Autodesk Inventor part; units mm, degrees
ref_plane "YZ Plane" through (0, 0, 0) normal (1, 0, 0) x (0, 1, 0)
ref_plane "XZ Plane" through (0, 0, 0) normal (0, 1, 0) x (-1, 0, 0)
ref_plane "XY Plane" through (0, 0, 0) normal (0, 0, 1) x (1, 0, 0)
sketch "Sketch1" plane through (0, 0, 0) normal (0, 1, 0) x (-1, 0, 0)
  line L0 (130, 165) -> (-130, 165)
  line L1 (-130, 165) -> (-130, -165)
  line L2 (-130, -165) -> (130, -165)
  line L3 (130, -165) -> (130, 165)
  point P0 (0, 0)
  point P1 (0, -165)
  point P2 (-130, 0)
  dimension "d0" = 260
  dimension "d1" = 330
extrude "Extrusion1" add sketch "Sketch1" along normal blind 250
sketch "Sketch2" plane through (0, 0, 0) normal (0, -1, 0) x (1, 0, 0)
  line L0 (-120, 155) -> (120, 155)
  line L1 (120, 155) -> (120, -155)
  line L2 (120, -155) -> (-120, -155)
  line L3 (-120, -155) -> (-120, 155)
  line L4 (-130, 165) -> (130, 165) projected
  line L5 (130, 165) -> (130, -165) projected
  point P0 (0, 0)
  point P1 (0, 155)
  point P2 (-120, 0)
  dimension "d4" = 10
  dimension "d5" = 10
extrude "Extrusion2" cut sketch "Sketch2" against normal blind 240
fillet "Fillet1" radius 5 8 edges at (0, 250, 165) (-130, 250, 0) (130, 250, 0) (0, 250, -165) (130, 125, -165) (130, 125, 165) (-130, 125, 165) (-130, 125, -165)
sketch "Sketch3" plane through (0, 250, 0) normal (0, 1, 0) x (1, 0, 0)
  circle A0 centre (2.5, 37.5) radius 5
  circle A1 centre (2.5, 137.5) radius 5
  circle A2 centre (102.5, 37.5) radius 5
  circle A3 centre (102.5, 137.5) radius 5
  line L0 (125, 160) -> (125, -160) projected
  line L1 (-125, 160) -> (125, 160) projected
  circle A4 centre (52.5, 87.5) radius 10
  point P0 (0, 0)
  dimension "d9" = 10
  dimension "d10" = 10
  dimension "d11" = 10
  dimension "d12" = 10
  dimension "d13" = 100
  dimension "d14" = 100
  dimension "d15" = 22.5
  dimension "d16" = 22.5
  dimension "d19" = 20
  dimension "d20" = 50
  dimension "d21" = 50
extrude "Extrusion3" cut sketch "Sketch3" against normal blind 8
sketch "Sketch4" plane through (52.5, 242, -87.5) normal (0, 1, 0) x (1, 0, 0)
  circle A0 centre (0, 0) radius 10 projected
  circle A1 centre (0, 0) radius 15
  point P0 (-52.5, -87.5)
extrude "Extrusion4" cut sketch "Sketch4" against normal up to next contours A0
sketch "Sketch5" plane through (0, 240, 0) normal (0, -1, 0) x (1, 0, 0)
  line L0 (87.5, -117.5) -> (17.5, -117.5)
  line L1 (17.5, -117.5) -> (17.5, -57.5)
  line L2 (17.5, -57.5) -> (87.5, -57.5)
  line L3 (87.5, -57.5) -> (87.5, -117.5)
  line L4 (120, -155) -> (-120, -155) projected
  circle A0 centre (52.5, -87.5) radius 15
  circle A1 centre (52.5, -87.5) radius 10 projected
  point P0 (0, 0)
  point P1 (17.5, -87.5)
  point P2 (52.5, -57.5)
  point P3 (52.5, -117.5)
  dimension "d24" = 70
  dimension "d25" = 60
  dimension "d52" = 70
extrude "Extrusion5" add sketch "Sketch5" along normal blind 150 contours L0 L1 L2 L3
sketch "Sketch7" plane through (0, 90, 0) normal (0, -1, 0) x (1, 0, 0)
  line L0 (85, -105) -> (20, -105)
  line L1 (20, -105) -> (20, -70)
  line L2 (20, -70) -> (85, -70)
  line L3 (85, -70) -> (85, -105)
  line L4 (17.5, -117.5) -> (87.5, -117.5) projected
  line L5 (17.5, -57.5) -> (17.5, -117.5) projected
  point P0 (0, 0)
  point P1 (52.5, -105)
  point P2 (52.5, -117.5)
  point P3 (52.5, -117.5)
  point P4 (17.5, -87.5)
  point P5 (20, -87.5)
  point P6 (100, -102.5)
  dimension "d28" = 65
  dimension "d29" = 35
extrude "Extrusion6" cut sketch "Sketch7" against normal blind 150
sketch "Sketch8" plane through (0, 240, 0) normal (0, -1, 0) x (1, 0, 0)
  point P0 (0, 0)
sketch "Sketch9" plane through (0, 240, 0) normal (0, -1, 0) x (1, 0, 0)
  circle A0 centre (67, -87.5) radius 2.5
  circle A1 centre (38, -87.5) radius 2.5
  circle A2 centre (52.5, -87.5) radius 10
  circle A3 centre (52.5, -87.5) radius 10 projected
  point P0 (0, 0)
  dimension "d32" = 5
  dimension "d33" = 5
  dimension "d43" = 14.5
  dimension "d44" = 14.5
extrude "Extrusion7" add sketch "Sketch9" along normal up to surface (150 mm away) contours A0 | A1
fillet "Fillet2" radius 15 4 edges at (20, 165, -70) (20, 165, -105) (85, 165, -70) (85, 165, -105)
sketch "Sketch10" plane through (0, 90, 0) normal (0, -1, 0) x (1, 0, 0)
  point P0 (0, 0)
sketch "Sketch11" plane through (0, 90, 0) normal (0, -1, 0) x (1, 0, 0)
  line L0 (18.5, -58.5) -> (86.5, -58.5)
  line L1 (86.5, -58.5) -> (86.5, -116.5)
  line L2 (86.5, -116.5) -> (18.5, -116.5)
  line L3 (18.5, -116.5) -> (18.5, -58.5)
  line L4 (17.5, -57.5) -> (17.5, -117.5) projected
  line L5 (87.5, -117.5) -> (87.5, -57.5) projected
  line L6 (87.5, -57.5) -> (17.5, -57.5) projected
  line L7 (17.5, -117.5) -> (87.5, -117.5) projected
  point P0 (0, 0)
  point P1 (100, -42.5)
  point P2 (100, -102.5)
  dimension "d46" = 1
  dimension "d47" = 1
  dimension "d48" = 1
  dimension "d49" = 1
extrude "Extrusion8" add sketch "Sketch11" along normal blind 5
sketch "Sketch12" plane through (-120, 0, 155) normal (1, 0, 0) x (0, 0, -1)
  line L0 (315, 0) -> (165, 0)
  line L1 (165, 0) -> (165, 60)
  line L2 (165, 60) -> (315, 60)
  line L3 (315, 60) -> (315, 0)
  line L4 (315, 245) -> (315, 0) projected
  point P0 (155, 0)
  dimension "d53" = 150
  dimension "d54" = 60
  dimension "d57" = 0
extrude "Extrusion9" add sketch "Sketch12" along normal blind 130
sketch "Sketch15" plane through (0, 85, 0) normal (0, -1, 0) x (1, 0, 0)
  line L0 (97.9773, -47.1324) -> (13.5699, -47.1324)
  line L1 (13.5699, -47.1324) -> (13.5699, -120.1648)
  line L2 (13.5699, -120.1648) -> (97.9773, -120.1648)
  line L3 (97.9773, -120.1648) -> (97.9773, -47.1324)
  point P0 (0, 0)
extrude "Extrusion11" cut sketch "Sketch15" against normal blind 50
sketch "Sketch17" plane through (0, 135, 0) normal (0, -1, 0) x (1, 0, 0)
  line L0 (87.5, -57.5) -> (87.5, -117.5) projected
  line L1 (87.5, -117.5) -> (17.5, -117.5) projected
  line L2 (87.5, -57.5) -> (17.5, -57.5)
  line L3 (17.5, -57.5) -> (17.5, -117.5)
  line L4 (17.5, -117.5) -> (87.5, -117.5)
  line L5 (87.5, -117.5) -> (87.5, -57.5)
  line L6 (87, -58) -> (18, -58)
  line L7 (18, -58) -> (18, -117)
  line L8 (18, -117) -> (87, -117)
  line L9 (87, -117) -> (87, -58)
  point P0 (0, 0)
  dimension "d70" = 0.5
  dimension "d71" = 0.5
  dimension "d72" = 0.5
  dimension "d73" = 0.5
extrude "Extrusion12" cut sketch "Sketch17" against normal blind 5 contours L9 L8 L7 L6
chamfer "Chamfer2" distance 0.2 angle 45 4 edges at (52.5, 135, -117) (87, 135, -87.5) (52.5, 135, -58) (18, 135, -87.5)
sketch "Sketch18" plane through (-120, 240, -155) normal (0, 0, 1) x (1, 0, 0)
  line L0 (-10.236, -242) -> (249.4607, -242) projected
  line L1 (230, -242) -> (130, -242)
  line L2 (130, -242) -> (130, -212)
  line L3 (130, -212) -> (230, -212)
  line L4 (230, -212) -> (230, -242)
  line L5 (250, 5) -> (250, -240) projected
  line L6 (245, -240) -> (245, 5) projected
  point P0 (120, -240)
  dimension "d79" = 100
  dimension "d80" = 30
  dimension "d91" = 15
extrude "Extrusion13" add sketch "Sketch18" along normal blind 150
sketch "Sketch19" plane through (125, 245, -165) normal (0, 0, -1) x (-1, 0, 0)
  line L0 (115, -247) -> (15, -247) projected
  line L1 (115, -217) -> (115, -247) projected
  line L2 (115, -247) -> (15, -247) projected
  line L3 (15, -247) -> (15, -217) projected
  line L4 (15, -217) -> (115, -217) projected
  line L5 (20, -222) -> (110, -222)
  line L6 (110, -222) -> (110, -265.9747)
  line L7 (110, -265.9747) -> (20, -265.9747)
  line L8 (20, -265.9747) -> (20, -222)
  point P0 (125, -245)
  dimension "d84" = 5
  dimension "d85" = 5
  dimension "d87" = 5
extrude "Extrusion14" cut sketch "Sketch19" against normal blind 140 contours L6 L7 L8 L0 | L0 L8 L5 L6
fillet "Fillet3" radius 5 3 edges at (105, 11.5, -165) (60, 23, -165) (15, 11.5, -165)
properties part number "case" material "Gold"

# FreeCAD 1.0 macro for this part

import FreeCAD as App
import Part
import Sketcher
Q = App.Units.Quantity


def edges_at(feature, points):
    """Names of the edges that pass closest to the given points."""
    edges = feature.Shape.Edges
    near = lambda p: min(range(len(edges)), key=lambda i: edges[i].distToShape(Part.Vertex(*p))[0])
    return sorted({f"Edge{near(p) + 1}" for p in points})

doc = App.newDocument("Part")
params = doc.addObject("Spreadsheet::Sheet", "Params")
for row, (alias, value) in enumerate([
    ("sketch1_width", "260 mm"),
    ("sketch1_height", "330 mm"),
    ("pad1_length", "250 mm"),
    ("sketch2_width", "240 mm"),
    ("sketch2_height", "310 mm"),
    ("pocket1_length", "240 mm"),
    ("fillet_radius", "5 mm"),
    ("sketch3_diameter", "10 mm"),
    ("sketch3_diameter2", "20 mm"),
    ("pocket2_length", "8 mm"),
    ("sketch4_diameter", "20 mm"),
    ("sketch5_width", "70 mm"),
    ("sketch5_height", "60 mm"),
    ("sketch5_diameter", "30 mm"),
    ("pad2_length", "150 mm"),
    ("sketch6_width", "65 mm"),
    ("sketch6_height", "35 mm"),
    ("pocket4_length", "150 mm"),
    ("sketch7_diameter", "5 mm"),
    ("pad3_length", "150 mm"),
    ("fillet2_radius", "15 mm"),
    ("sketch8_width", "70 mm"),
    ("sketch8_height", "60 mm"),
    ("pad4_length", "5 mm"),
    ("sketch9_width", "60 mm"),
    ("sketch9_height", "150 mm"),
    ("pad5_length", "130 mm"),
    ("pocket5_length", "50 mm"),
    ("sketch11_width", "69 mm"),
    ("sketch11_height", "59 mm"),
    ("pocket6_length", "5 mm"),
    ("chamfer_size", "0.2 mm"),
    ("sketch12_width", "100 mm"),
    ("sketch12_height", "30 mm"),
    ("pad6_length", "150 mm"),
    ("sketch13_width", "90 mm"),
    ("pocket7_length", "140 mm"),
    ("fillet3_radius", "5 mm"),
], start=1):
    params.set(f"A{row}", alias)
    params.set(f"B{row}", "=" + value)
    params.setAlias(f"B{row}", alias)

body = doc.addObject("PartDesign::Body", "Body")

# Sketch on XZ plane
sketch1 = body.newObject("Sketcher::SketchObject", "Sketch")
sketch1.AttachmentSupport = (doc.getObject("XZ_Plane"), [""])
sketch1.MapMode = "FlatFace"
sketch1.addGeometry([
    Part.LineSegment(App.Vector(-130, -165, 0), App.Vector(-130, 165, 0)),
    Part.LineSegment(App.Vector(-130, 165, 0), App.Vector(130, 165, 0)),
    Part.LineSegment(App.Vector(130, 165, 0), App.Vector(130, -165, 0)),
    Part.LineSegment(App.Vector(130, -165, 0), App.Vector(-130, -165, 0)),
], False)
sketch1.addConstraint([
    Sketcher.Constraint("Coincident", 0, 2, 1, 1),
    Sketcher.Constraint("Coincident", 1, 2, 2, 1),
    Sketcher.Constraint("Coincident", 2, 2, 3, 1),
    Sketcher.Constraint("Coincident", 3, 2, 0, 1),
    Sketcher.Constraint("Vertical", 0),
    Sketcher.Constraint("Horizontal", 1),
    Sketcher.Constraint("Vertical", 2),
    Sketcher.Constraint("Horizontal", 3),
    Sketcher.Constraint("Symmetric", 0, 2, 2, 2, -1, 1),
    Sketcher.Constraint("DistanceX", 1, 1, 1, 2, Q("260 mm")),
    Sketcher.Constraint("DistanceY", 0, 1, 0, 2, Q("330 mm")),
])
sketch1.setExpression("Constraints[9]", "Params.sketch1_width")
sketch1.setExpression("Constraints[10]", "Params.sketch1_height")
pad1 = body.newObject("PartDesign::Pad", "Pad")
pad1.Profile = sketch1
pad1.setExpression("Length", "Params.pad1_length")
pad1.Reversed = True

# Sketch on XZ plane
sketch2 = body.newObject("Sketcher::SketchObject", "Sketch001")
sketch2.AttachmentSupport = (doc.getObject("XZ_Plane"), [""])
sketch2.MapMode = "FlatFace"
sketch2.addGeometry([
    Part.LineSegment(App.Vector(120, 155, 0), App.Vector(-120, 155, 0)),
    Part.LineSegment(App.Vector(-120, 155, 0), App.Vector(-120, -155, 0)),
    Part.LineSegment(App.Vector(-120, -155, 0), App.Vector(120, -155, 0)),
    Part.LineSegment(App.Vector(120, -155, 0), App.Vector(120, 155, 0)),
], False)
sketch2.addConstraint([
    Sketcher.Constraint("Coincident", 0, 2, 1, 1),
    Sketcher.Constraint("Coincident", 1, 2, 2, 1),
    Sketcher.Constraint("Coincident", 2, 2, 3, 1),
    Sketcher.Constraint("Coincident", 3, 2, 0, 1),
    Sketcher.Constraint("Horizontal", 0),
    Sketcher.Constraint("Vertical", 1),
    Sketcher.Constraint("Horizontal", 2),
    Sketcher.Constraint("Vertical", 3),
    Sketcher.Constraint("Symmetric", 0, 2, 2, 2, -1, 1),
    Sketcher.Constraint("DistanceX", 0, 2, 0, 1, Q("240 mm")),
    Sketcher.Constraint("DistanceY", 1, 2, 1, 1, Q("310 mm")),
])
sketch2.setExpression("Constraints[9]", "Params.sketch2_width")
sketch2.setExpression("Constraints[10]", "Params.sketch2_height")
pocket1 = body.newObject("PartDesign::Pocket", "Pocket")
pocket1.Profile = sketch2
pocket1.setExpression("Length", "Params.pocket1_length")
doc.recompute()

fillet = body.newObject("PartDesign::Fillet", "Fillet")
fillet.Base = (pocket1, edges_at(pocket1, [
    (0, 250, 165),
    (-130, 250, 0),
    (130, 250, 0),
    (0, 250, -165),
    (130, 125, -165),
    (130, 125, 165),
    (-130, 125, 165),
    (-130, 125, -165),
]))
fillet.setExpression("Radius", "Params.fillet_radius")

# Sketch on XZ plane
sketch3 = body.newObject("Sketcher::SketchObject", "Sketch002")
sketch3.AttachmentSupport = (doc.getObject("XZ_Plane"), [""])
sketch3.MapMode = "FlatFace"
sketch3.AttachmentOffset = App.Placement(App.Vector(0, 0, -250), App.Rotation())
sketch3.addGeometry([
    Part.Circle(App.Vector(2, -38, 0), App.Vector(0, 0, 1), 5),  # 0
    Part.Circle(App.Vector(2, -138, 0), App.Vector(0, 0, 1), 5),  # 1
    Part.Circle(App.Vector(102, -38, 0), App.Vector(0, 0, 1), 5),  # 2
    Part.Circle(App.Vector(102, -138, 0), App.Vector(0, 0, 1), 5),  # 3
    Part.Circle(App.Vector(52, -88, 0), App.Vector(0, 0, 1), 10),  # 4
], False)
sketch3.addConstraint([
    Sketcher.Constraint("Equal", 0, 1),
    Sketcher.Constraint("Equal", 1, 2),
    Sketcher.Constraint("Equal", 2, 3),
    Sketcher.Constraint("Horizontal", 0, 3, 2, 3),
    Sketcher.Constraint("Horizontal", 1, 3, 3, 3),
    Sketcher.Constraint("Vertical", 0, 3, 1, 3),
    Sketcher.Constraint("Vertical", 2, 3, 3, 3),
    Sketcher.Constraint("Diameter", 0, Q("10 mm")),
    Sketcher.Constraint("Diameter", 4, Q("20 mm")),
    Sketcher.Constraint("DistanceY", 1, 3, 0, 3, Q("100 mm")),
    Sketcher.Constraint("DistanceX", 0, 3, 2, 3, Q("100 mm")),
    Sketcher.Constraint("DistanceX", 0, 3, 4, 3, Q("50 mm")),
    Sketcher.Constraint("DistanceY", 4, 3, 0, 3, Q("50 mm")),
    Sketcher.Constraint("DistanceX", -1, 1, 0, 3, Q("2.5 mm")),
    Sketcher.Constraint("DistanceY", 0, 3, -1, 1, Q("37.5 mm")),
])
sketch3.setExpression("Constraints[7]", "Params.sketch3_diameter")
sketch3.setExpression("Constraints[8]", "Params.sketch3_diameter2")
pocket2 = body.newObject("PartDesign::Pocket", "Pocket001")
pocket2.Profile = sketch3
pocket2.setExpression("Length", "Params.pocket2_length")
pocket2.Reversed = True

# Sketch on XZ plane
sketch4 = body.newObject("Sketcher::SketchObject", "Sketch003")
sketch4.AttachmentSupport = (doc.getObject("XZ_Plane"), [""])
sketch4.MapMode = "FlatFace"
sketch4.AttachmentOffset = App.Placement(App.Vector(0, 0, -242), App.Rotation())
sketch4.addGeometry(Part.Circle(App.Vector(52, -88, 0), App.Vector(0, 0, 1), 10), False)
sketch4.addConstraint([
    Sketcher.Constraint("Diameter", 0, Q("20 mm")),
    Sketcher.Constraint("DistanceX", -1, 1, 0, 3, Q("52.5 mm")),
    Sketcher.Constraint("DistanceY", 0, 3, -1, 1, Q("87.5 mm")),
])
sketch4.setExpression("Constraints[0]", "Params.sketch4_diameter")
pocket3 = body.newObject("PartDesign::Pocket", "Pocket002")
pocket3.Profile = sketch4
pocket3.Type = "UpToFirst"
pocket3.Reversed = True

# Sketch on XZ plane
sketch5 = body.newObject("Sketcher::SketchObject", "Sketch004")
sketch5.AttachmentSupport = (doc.getObject("XZ_Plane"), [""])
sketch5.MapMode = "FlatFace"
sketch5.AttachmentOffset = App.Placement(App.Vector(0, 0, -240), App.Rotation())
sketch5.addGeometry([
    Part.LineSegment(App.Vector(18, -118, 0), App.Vector(88, -118, 0)),  # 0
    Part.LineSegment(App.Vector(88, -118, 0), App.Vector(88, -58, 0)),  # 1
    Part.LineSegment(App.Vector(88, -58, 0), App.Vector(18, -58, 0)),  # 2
    Part.LineSegment(App.Vector(18, -58, 0), App.Vector(18, -118, 0)),  # 3
    Part.Circle(App.Vector(52, -88, 0), App.Vector(0, 0, 1), 15),  # 4
], False)
sketch5.addConstraint([
    Sketcher.Constraint("Coincident", 0, 2, 1, 1),
    Sketcher.Constraint("Coincident", 1, 2, 2, 1),
    Sketcher.Constraint("Coincident", 2, 2, 3, 1),
    Sketcher.Constraint("Coincident", 3, 2, 0, 1),
    Sketcher.Constraint("Horizontal", 0),
    Sketcher.Constraint("Vertical", 1),
    Sketcher.Constraint("Horizontal", 2),
    Sketcher.Constraint("Vertical", 3),
    Sketcher.Constraint("DistanceX", 0, 1, 0, 2, Q("70 mm")),
    Sketcher.Constraint("DistanceY", 1, 1, 1, 2, Q("60 mm")),
    Sketcher.Constraint("Diameter", 4, Q("30 mm")),
    Sketcher.Constraint("DistanceX", 4, 3, 0, 2, Q("35 mm")),
    Sketcher.Constraint("DistanceY", 0, 2, 4, 3, Q("30 mm")),
    Sketcher.Constraint("DistanceX", -1, 1, 4, 3, Q("52.5 mm")),
    Sketcher.Constraint("DistanceY", 4, 3, -1, 1, Q("87.5 mm")),
])
sketch5.setExpression("Constraints[8]", "Params.sketch5_width")
sketch5.setExpression("Constraints[9]", "Params.sketch5_height")
sketch5.setExpression("Constraints[10]", "Params.sketch5_diameter")
pad2 = body.newObject("PartDesign::Pad", "Pad001")
pad2.Profile = sketch5
pad2.setExpression("Length", "Params.pad2_length")

# Sketch on XZ plane
sketch6 = body.newObject("Sketcher::SketchObject", "Sketch005")
sketch6.AttachmentSupport = (doc.getObject("XZ_Plane"), [""])
sketch6.MapMode = "FlatFace"
sketch6.AttachmentOffset = App.Placement(App.Vector(0, 0, -90), App.Rotation())
sketch6.addGeometry([
    Part.LineSegment(App.Vector(20, -105, 0), App.Vector(85, -105, 0)),
    Part.LineSegment(App.Vector(85, -105, 0), App.Vector(85, -70, 0)),
    Part.LineSegment(App.Vector(85, -70, 0), App.Vector(20, -70, 0)),
    Part.LineSegment(App.Vector(20, -70, 0), App.Vector(20, -105, 0)),
], False)
sketch6.addConstraint([
    Sketcher.Constraint("Coincident", 0, 2, 1, 1),
    Sketcher.Constraint("Coincident", 1, 2, 2, 1),
    Sketcher.Constraint("Coincident", 2, 2, 3, 1),
    Sketcher.Constraint("Coincident", 3, 2, 0, 1),
    Sketcher.Constraint("Horizontal", 0),
    Sketcher.Constraint("Vertical", 1),
    Sketcher.Constraint("Horizontal", 2),
    Sketcher.Constraint("Vertical", 3),
    Sketcher.Constraint("DistanceX", 0, 1, 0, 2, Q("65 mm")),
    Sketcher.Constraint("DistanceY", 1, 1, 1, 2, Q("35 mm")),
    Sketcher.Constraint("DistanceX", -1, 1, 0, 2, Q("85 mm")),
    Sketcher.Constraint("DistanceY", 0, 2, -1, 1, Q("105 mm")),
])
sketch6.setExpression("Constraints[8]", "Params.sketch6_width")
sketch6.setExpression("Constraints[9]", "Params.sketch6_height")
pocket4 = body.newObject("PartDesign::Pocket", "Pocket003")
pocket4.Profile = sketch6
pocket4.setExpression("Length", "Params.pocket4_length")

# Sketch on XZ plane
sketch7 = body.newObject("Sketcher::SketchObject", "Sketch006")
sketch7.AttachmentSupport = (doc.getObject("XZ_Plane"), [""])
sketch7.MapMode = "FlatFace"
sketch7.AttachmentOffset = App.Placement(App.Vector(0, 0, -240), App.Rotation())
sketch7.addGeometry([
    Part.Circle(App.Vector(67, -87.5, 0), App.Vector(0, 0, 1), 2.5),
    Part.Circle(App.Vector(38, -87.5, 0), App.Vector(0, 0, 1), 2.5),
], False)
sketch7.addConstraint([
    Sketcher.Constraint("Equal", 0, 1),
    Sketcher.Constraint("Horizontal", 0, 3, 1, 3),
    Sketcher.Constraint("Diameter", 0, Q("5 mm")),
    Sketcher.Constraint("DistanceX", -1, 1, 0, 3, Q("67 mm")),
    Sketcher.Constraint("DistanceX", -1, 1, 1, 3, Q("38 mm")),
    Sketcher.Constraint("DistanceY", 0, 3, -1, 1, Q("87.5 mm")),
])
sketch7.setExpression("Constraints[2]", "Params.sketch7_diameter")
pad3 = body.newObject("PartDesign::Pad", "Pad002")
pad3.Profile = sketch7
pad3.setExpression("Length", "Params.pad3_length")
doc.recompute()

fillet2 = body.newObject("PartDesign::Fillet", "Fillet001")
fillet2.Base = (pad3, edges_at(pad3, [
    (20, 165, -70),
    (20, 165, -105),
    (85, 165, -70),
    (85, 165, -105),
]))
fillet2.setExpression("Radius", "Params.fillet2_radius")

# Sketch on XZ plane
sketch8 = body.newObject("Sketcher::SketchObject", "Sketch007")
sketch8.AttachmentSupport = (doc.getObject("XZ_Plane"), [""])
sketch8.MapMode = "FlatFace"
sketch8.AttachmentOffset = App.Placement(App.Vector(0, 0, -90), App.Rotation())
sketch8.addGeometry([
    Part.LineSegment(App.Vector(88, -58, 0), App.Vector(18, -58, 0)),  # 0
    Part.LineSegment(App.Vector(18, -58, 0), App.Vector(18, -118, 0)),  # 1
    Part.LineSegment(App.Vector(18, -118, 0), App.Vector(88, -118, 0)),  # 2
    Part.LineSegment(App.Vector(88, -118, 0), App.Vector(88, -58, 0)),  # 3
    Part.LineSegment(App.Vector(18, -116, 0), App.Vector(18, -58, 0)),  # 4
    Part.LineSegment(App.Vector(18, -58, 0), App.Vector(86, -58, 0)),  # 5
    Part.LineSegment(App.Vector(86, -58, 0), App.Vector(86, -116, 0)),  # 6
    Part.LineSegment(App.Vector(86, -116, 0), App.Vector(18, -116, 0)),  # 7
], False)
sketch8.addConstraint([
    Sketcher.Constraint("Coincident", 0, 2, 1, 1),
    Sketcher.Constraint("Coincident", 1, 2, 2, 1),
    Sketcher.Constraint("Coincident", 2, 2, 3, 1),
    Sketcher.Constraint("Coincident", 3, 2, 0, 1),
    Sketcher.Constraint("Coincident", 4, 2, 5, 1),
    Sketcher.Constraint("Coincident", 5, 2, 6, 1),
    Sketcher.Constraint("Coincident", 6, 2, 7, 1),
    Sketcher.Constraint("Coincident", 7, 2, 4, 1),
    Sketcher.Constraint("Horizontal", 0),
    Sketcher.Constraint("Vertical", 1),
    Sketcher.Constraint("Horizontal", 2),
    Sketcher.Constraint("Vertical", 3),
    Sketcher.Constraint("Vertical", 4),
    Sketcher.Constraint("Horizontal", 5),
    Sketcher.Constraint("Vertical", 6),
    Sketcher.Constraint("Horizontal", 7),
    Sketcher.Constraint("DistanceX", 0, 2, 4, 2, Q("1 mm")),
    Sketcher.Constraint("DistanceY", 4, 2, 0, 2, Q("1 mm")),
    Sketcher.Constraint("DistanceX", 5, 2, 3, 2, Q("1 mm")),
    Sketcher.Constraint("DistanceY", 2, 2, 6, 2, Q("1 mm")),
    Sketcher.Constraint("DistanceX", 0, 2, 0, 1, Q("70 mm")),
    Sketcher.Constraint("DistanceY", 1, 2, 1, 1, Q("60 mm")),
    Sketcher.Constraint("DistanceX", -1, 1, 0, 2, Q("17.5 mm")),
    Sketcher.Constraint("DistanceY", 0, 2, -1, 1, Q("57.5 mm")),
])
sketch8.setExpression("Constraints[20]", "Params.sketch8_width")
sketch8.setExpression("Constraints[21]", "Params.sketch8_height")
pad4 = body.newObject("PartDesign::Pad", "Pad003")
pad4.Profile = sketch8
pad4.setExpression("Length", "Params.pad4_length")

# Sketch on YZ plane
sketch9 = body.newObject("Sketcher::SketchObject", "Sketch008")
sketch9.AttachmentSupport = (doc.getObject("YZ_Plane"), [""])
sketch9.MapMode = "FlatFace"
sketch9.AttachmentOffset = App.Placement(App.Vector(0, 0, -120), App.Rotation())
sketch9.addGeometry([
    Part.LineSegment(App.Vector(0, -10, 0), App.Vector(0, -160, 0)),
    Part.LineSegment(App.Vector(0, -160, 0), App.Vector(60, -160, 0)),
    Part.LineSegment(App.Vector(60, -160, 0), App.Vector(60, -10, 0)),
    Part.LineSegment(App.Vector(60, -10, 0), App.Vector(0, -10, 0)),
], False)
sketch9.addConstraint([
    Sketcher.Constraint("Coincident", 0, 2, 1, 1),
    Sketcher.Constraint("Coincident", 1, 2, 2, 1),
    Sketcher.Constraint("Coincident", 2, 2, 3, 1),
    Sketcher.Constraint("Coincident", 3, 2, 0, 1),
    Sketcher.Constraint("Vertical", 0),
    Sketcher.Constraint("Horizontal", 1),
    Sketcher.Constraint("Vertical", 2),
    Sketcher.Constraint("Horizontal", 3),
    Sketcher.Constraint("PointOnObject", 0, 2, -2),
    Sketcher.Constraint("DistanceX", 1, 1, 1, 2, Q("60 mm")),
    Sketcher.Constraint("DistanceY", 0, 2, 0, 1, Q("150 mm")),
    Sketcher.Constraint("DistanceY", 0, 2, -1, 1, Q("160 mm")),
])
sketch9.setExpression("Constraints[9]", "Params.sketch9_width")
sketch9.setExpression("Constraints[10]", "Params.sketch9_height")
pad5 = body.newObject("PartDesign::Pad", "Pad004")
pad5.Profile = sketch9
pad5.setExpression("Length", "Params.pad5_length")

# Sketch on XZ plane
sketch10 = body.newObject("Sketcher::SketchObject", "Sketch009")
sketch10.AttachmentSupport = (doc.getObject("XZ_Plane"), [""])
sketch10.MapMode = "FlatFace"
sketch10.AttachmentOffset = App.Placement(App.Vector(0, 0, -85), App.Rotation())
sketch10.addGeometry([
    Part.LineSegment(App.Vector(98, -120, 0), App.Vector(98, -47, 0)),
    Part.LineSegment(App.Vector(98, -47, 0), App.Vector(14, -47, 0)),
    Part.LineSegment(App.Vector(14, -47, 0), App.Vector(14, -120, 0)),
    Part.LineSegment(App.Vector(14, -120, 0), App.Vector(98, -120, 0)),
], False)
sketch10.addConstraint([
    Sketcher.Constraint("Coincident", 0, 2, 1, 1),
    Sketcher.Constraint("Coincident", 1, 2, 2, 1),
    Sketcher.Constraint("Coincident", 2, 2, 3, 1),
    Sketcher.Constraint("Coincident", 3, 2, 0, 1),
    Sketcher.Constraint("Vertical", 0),
    Sketcher.Constraint("Horizontal", 1),
    Sketcher.Constraint("Vertical", 2),
    Sketcher.Constraint("Horizontal", 3),
    Sketcher.Constraint("DistanceX", -1, 1, 1, 2, Q("13.57 mm")),
    Sketcher.Constraint("DistanceX", 1, 2, 1, 1, Q("84.4074 mm")),
    Sketcher.Constraint("DistanceY", 0, 1, 0, 2, Q("73.0324 mm")),
    Sketcher.Constraint("DistanceY", 0, 2, -1, 1, Q("47.1324 mm")),
])
pocket5 = body.newObject("PartDesign::Pocket", "Pocket004")
pocket5.Profile = sketch10
pocket5.setExpression("Length", "Params.pocket5_length")

# Sketch on XZ plane
sketch11 = body.newObject("Sketcher::SketchObject", "Sketch010")
sketch11.AttachmentSupport = (doc.getObject("XZ_Plane"), [""])
sketch11.MapMode = "FlatFace"
sketch11.AttachmentOffset = App.Placement(App.Vector(0, 0, -135), App.Rotation())
sketch11.addGeometry([
    Part.LineSegment(App.Vector(87, -117, 0), App.Vector(87, -58, 0)),
    Part.LineSegment(App.Vector(87, -58, 0), App.Vector(18, -58, 0)),
    Part.LineSegment(App.Vector(18, -58, 0), App.Vector(18, -117, 0)),
    Part.LineSegment(App.Vector(18, -117, 0), App.Vector(87, -117, 0)),
], False)
sketch11.addConstraint([
    Sketcher.Constraint("Coincident", 0, 2, 1, 1),
    Sketcher.Constraint("Coincident", 1, 2, 2, 1),
    Sketcher.Constraint("Coincident", 2, 2, 3, 1),
    Sketcher.Constraint("Coincident", 3, 2, 0, 1),
    Sketcher.Constraint("Vertical", 0),
    Sketcher.Constraint("Horizontal", 1),
    Sketcher.Constraint("Vertical", 2),
    Sketcher.Constraint("Horizontal", 3),
    Sketcher.Constraint("DistanceX", 1, 2, 1, 1, Q("69 mm")),
    Sketcher.Constraint("DistanceY", 0, 1, 0, 2, Q("59 mm")),
    Sketcher.Constraint("DistanceX", -1, 1, 0, 2, Q("87 mm")),
    Sketcher.Constraint("DistanceY", 0, 2, -1, 1, Q("58 mm")),
])
sketch11.setExpression("Constraints[8]", "Params.sketch11_width")
sketch11.setExpression("Constraints[9]", "Params.sketch11_height")
pocket6 = body.newObject("PartDesign::Pocket", "Pocket005")
pocket6.Profile = sketch11
pocket6.setExpression("Length", "Params.pocket6_length")
doc.recompute()

chamfer = body.newObject("PartDesign::Chamfer", "Chamfer")
chamfer.Base = (pocket6, edges_at(pocket6, [
    (52.5, 135, -117),
    (87, 135, -87.5),
    (52.5, 135, -58),
    (18, 135, -87.5),
]))
chamfer.setExpression("Size", "Params.chamfer_size")

# Sketch on XY plane
sketch12 = body.newObject("Sketcher::SketchObject", "Sketch011")
sketch12.AttachmentSupport = (doc.getObject("XY_Plane"), [""])
sketch12.MapMode = "FlatFace"
sketch12.AttachmentOffset = App.Placement(App.Vector(0, 0, -155), App.Rotation())
sketch12.addGeometry([
    Part.LineSegment(App.Vector(10, 28, 0), App.Vector(10, -2, 0)),
    Part.LineSegment(App.Vector(10, -2, 0), App.Vector(110, -2, 0)),
    Part.LineSegment(App.Vector(110, -2, 0), App.Vector(110, 28, 0)),
    Part.LineSegment(App.Vector(110, 28, 0), App.Vector(10, 28, 0)),
], False)
sketch12.addConstraint([
    Sketcher.Constraint("Coincident", 0, 2, 1, 1),
    Sketcher.Constraint("Coincident", 1, 2, 2, 1),
    Sketcher.Constraint("Coincident", 2, 2, 3, 1),
    Sketcher.Constraint("Coincident", 3, 2, 0, 1),
    Sketcher.Constraint("Vertical", 0),
    Sketcher.Constraint("Horizontal", 1),
    Sketcher.Constraint("Vertical", 2),
    Sketcher.Constraint("Horizontal", 3),
    Sketcher.Constraint("DistanceX", 1, 1, 1, 2, Q("100 mm")),
    Sketcher.Constraint("DistanceY", 0, 2, 0, 1, Q("30 mm")),
    Sketcher.Constraint("DistanceX", -1, 1, 0, 2, Q("10 mm")),
    Sketcher.Constraint("DistanceY", 0, 2, -1, 1, Q("2 mm")),
])
sketch12.setExpression("Constraints[8]", "Params.sketch12_width")
sketch12.setExpression("Constraints[9]", "Params.sketch12_height")
pad6 = body.newObject("PartDesign::Pad", "Pad005")
pad6.Profile = sketch12
pad6.setExpression("Length", "Params.pad6_length")

# Sketch on XY plane
sketch13 = body.newObject("Sketcher::SketchObject", "Sketch012")
sketch13.AttachmentSupport = (doc.getObject("XY_Plane"), [""])
sketch13.MapMode = "FlatFace"
sketch13.AttachmentOffset = App.Placement(App.Vector(0, 0, -165), App.Rotation())
sketch13.addGeometry([
    Part.LineSegment(App.Vector(15, -21, 0), App.Vector(15, 23, 0)),
    Part.LineSegment(App.Vector(15, 23, 0), App.Vector(105, 23, 0)),
    Part.LineSegment(App.Vector(105, 23, 0), App.Vector(105, -21, 0)),
    Part.LineSegment(App.Vector(105, -21, 0), App.Vector(15, -21, 0)),
], False)
sketch13.addConstraint([
    Sketcher.Constraint("Coincident", 0, 2, 1, 1),
    Sketcher.Constraint("Coincident", 1, 2, 2, 1),
    Sketcher.Constraint("Coincident", 2, 2, 3, 1),
    Sketcher.Constraint("Coincident", 3, 2, 0, 1),
    Sketcher.Constraint("Vertical", 0),
    Sketcher.Constraint("Horizontal", 1),
    Sketcher.Constraint("Vertical", 2),
    Sketcher.Constraint("Horizontal", 3),
    Sketcher.Constraint("DistanceX", 1, 1, 1, 2, Q("90 mm")),
    Sketcher.Constraint("DistanceX", -1, 1, 0, 2, Q("15 mm")),
    Sketcher.Constraint("DistanceY", -1, 1, 0, 2, Q("23 mm")),
    Sketcher.Constraint("DistanceY", 0, 1, 0, 2, Q("43.9747 mm")),
])
sketch13.setExpression("Constraints[8]", "Params.sketch13_width")
pocket7 = body.newObject("PartDesign::Pocket", "Pocket006")
pocket7.Profile = sketch13
pocket7.setExpression("Length", "Params.pocket7_length")
pocket7.Reversed = True
doc.recompute()

fillet3 = body.newObject("PartDesign::Fillet", "Fillet002")
fillet3.Base = (pocket7, edges_at(pocket7, [(105, 11.5, -165), (60, 23, -165), (15, 11.5, -165)]))
fillet3.setExpression("Radius", "Params.fillet3_radius")

doc.recompute()
